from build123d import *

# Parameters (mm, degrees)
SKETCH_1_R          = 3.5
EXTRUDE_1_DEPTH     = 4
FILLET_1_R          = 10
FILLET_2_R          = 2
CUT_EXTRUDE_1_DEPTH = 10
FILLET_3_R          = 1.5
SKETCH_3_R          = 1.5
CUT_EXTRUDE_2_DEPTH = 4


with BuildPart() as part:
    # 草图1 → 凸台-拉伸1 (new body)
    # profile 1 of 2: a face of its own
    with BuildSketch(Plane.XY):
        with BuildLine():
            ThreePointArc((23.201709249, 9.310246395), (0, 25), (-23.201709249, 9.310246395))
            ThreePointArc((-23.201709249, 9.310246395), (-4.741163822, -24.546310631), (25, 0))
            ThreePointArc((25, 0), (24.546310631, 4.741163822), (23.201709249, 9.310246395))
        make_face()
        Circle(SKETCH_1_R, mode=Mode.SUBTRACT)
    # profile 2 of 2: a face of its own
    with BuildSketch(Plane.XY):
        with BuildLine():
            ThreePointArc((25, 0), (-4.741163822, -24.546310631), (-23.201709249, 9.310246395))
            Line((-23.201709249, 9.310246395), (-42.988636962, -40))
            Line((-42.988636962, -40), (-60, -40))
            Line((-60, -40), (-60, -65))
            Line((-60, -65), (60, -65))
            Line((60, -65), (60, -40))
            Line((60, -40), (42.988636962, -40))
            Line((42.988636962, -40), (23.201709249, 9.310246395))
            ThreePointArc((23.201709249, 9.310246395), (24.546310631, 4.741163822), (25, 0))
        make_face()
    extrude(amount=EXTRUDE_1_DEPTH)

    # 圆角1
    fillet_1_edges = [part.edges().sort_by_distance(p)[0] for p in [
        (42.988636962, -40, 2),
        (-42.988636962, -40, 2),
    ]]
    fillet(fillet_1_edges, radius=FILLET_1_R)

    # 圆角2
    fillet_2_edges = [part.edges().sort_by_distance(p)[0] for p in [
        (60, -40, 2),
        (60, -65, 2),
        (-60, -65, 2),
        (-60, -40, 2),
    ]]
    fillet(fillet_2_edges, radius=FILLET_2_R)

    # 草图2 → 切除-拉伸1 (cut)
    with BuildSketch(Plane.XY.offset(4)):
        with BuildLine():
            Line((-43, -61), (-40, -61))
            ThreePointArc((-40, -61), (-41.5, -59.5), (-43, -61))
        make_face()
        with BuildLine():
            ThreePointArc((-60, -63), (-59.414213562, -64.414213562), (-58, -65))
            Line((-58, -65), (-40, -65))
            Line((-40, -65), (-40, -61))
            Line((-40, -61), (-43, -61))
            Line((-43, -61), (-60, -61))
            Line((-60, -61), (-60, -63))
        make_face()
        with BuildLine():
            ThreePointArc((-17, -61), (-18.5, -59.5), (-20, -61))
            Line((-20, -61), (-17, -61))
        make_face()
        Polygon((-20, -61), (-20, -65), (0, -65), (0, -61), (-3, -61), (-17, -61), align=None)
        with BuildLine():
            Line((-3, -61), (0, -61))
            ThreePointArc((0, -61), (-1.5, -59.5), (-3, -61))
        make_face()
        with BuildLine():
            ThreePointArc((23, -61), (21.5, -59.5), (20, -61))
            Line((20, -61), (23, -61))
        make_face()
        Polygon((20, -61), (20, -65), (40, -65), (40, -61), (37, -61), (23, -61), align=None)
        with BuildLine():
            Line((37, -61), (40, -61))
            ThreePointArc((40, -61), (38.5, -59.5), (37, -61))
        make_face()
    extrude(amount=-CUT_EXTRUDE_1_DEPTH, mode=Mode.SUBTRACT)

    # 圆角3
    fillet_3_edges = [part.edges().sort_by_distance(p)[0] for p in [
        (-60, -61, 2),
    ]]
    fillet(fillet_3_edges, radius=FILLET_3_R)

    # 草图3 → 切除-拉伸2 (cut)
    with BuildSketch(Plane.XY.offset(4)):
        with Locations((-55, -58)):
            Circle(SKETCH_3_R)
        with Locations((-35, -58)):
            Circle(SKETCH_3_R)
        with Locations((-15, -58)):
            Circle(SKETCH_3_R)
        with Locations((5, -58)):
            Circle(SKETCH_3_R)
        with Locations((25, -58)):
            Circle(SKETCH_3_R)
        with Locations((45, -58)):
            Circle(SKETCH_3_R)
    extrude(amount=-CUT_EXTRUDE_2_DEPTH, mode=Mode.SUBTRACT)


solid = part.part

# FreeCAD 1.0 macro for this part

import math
import FreeCAD as App
import Part
import Sketcher

V = App.Vector
Q = App.Units.Quantity


def edges_at(feature, points):
    """Names of the edges that pass closest to the given points."""
    edges = feature.Shape.Edges
    near = lambda p: min(range(len(edges)), key=lambda i: edges[i].distToShape(Part.Vertex(*p))[0])
    return sorted({f"Edge{near(p) + 1}" for p in points})

doc = App.newDocument("Part")
body = doc.addObject("PartDesign::Body", "Body")

# Sketch on XY plane
sketch1 = body.newObject("Sketcher::SketchObject", "Sketch")
sketch1.AttachmentSupport = (doc.getObject("XY_Plane"), [""])
sketch1.MapMode = "FlatFace"
sketch1.addGeometry(Part.ArcOfCircle(Part.Circle(V(0, 0, 0), V(0, 0, 1), 25), math.radians(22), math.radians(158)), False)
sketch1.addGeometry(Part.LineSegment(V(-23.2, 9.3, 0), V(-43, -40, 0)), False)
sketch1.addGeometry(Part.LineSegment(V(-43, -40, 0), V(-60, -40, 0)), False)
sketch1.addGeometry(Part.LineSegment(V(-60, -40, 0), V(-60, -65, 0)), False)
sketch1.addGeometry(Part.LineSegment(V(-60, -65, 0), V(60, -65, 0)), False)
sketch1.addGeometry(Part.LineSegment(V(60, -65, 0), V(60, -40, 0)), False)
sketch1.addGeometry(Part.LineSegment(V(60, -40, 0), V(43, -40, 0)), False)
sketch1.addGeometry(Part.LineSegment(V(43, -40, 0), V(23.2, 9.3, 0)), False)
sketch1.addGeometry(Part.Circle(V(0, 0, 0), V(0, 0, 1), 3.5), False)
sketch1.addConstraint(Sketcher.Constraint("Tangent", 0, 2, 1, 1))
sketch1.addConstraint(Sketcher.Constraint("Coincident", 1, 2, 2, 1))
sketch1.addConstraint(Sketcher.Constraint("Coincident", 2, 2, 3, 1))
sketch1.addConstraint(Sketcher.Constraint("Coincident", 3, 2, 4, 1))
sketch1.addConstraint(Sketcher.Constraint("Coincident", 4, 2, 5, 1))
sketch1.addConstraint(Sketcher.Constraint("Coincident", 5, 2, 6, 1))
sketch1.addConstraint(Sketcher.Constraint("Coincident", 6, 2, 7, 1))
sketch1.addConstraint(Sketcher.Constraint("Tangent", 7, 2, 0, 1))
sketch1.addConstraint(Sketcher.Constraint("Horizontal", 2))
sketch1.addConstraint(Sketcher.Constraint("Vertical", 3))
sketch1.addConstraint(Sketcher.Constraint("Horizontal", 4))
sketch1.addConstraint(Sketcher.Constraint("Vertical", 5))
sketch1.addConstraint(Sketcher.Constraint("Horizontal", 6))
sketch1.addConstraint(Sketcher.Constraint("Coincident", 0, 3, -1, 1))
sketch1.addConstraint(Sketcher.Constraint("Coincident", 8, 3, -1, 1))
sketch1.addConstraint(Sketcher.Constraint("Symmetric", 2, 2, 5, 2, -2))
sketch1.addConstraint(Sketcher.Constraint("Horizontal", 0, 2, 7, 2))
sketch1.addConstraint(Sketcher.Constraint("Diameter", 8, Q("7 mm")))
sketch1.addConstraint(Sketcher.Constraint("Radius", 0, Q("25 mm")))
sketch1.addConstraint(Sketcher.Constraint("DistanceX", 4, 1, 4, 2, Q("120 mm")))
sketch1.addConstraint(Sketcher.Constraint("DistanceY", 3, 2, 3, 1, Q("25 mm")))
sketch1.addConstraint(Sketcher.Constraint("DistanceY", 1, 2, -1, 1, Q("40 mm")))
sketch1.addConstraint(Sketcher.Constraint("DistanceX", 2, 2, 2, 1, Q("17.011363 mm")))
pad1 = body.newObject("PartDesign::Pad", "Pad")
pad1.Profile = sketch1
pad1.Length = 4
doc.recompute()

fillet = body.newObject("PartDesign::Fillet", "Fillet")
fillet.Base = (pad1, edges_at(pad1, [(42.989, -40, 2), (-42.989, -40, 2)]))
fillet.Radius = 10
doc.recompute()

fillet2 = body.newObject("PartDesign::Fillet", "Fillet001")
fillet2.Base = (fillet, edges_at(fillet, [
    (60, -40, 2),
    (60, -65, 2),
    (-60, -65, 2),
    (-60, -40, 2),
]))
fillet2.Radius = 2

# Sketch on XY plane
sketch2 = body.newObject("Sketcher::SketchObject", "Sketch001")
sketch2.AttachmentSupport = (doc.getObject("XY_Plane"), [""])
sketch2.MapMode = "FlatFace"
sketch2.AttachmentOffset = App.Placement(V(0, 0, 4), App.Rotation())
sketch2.addGeometry(Part.ArcOfCircle(Part.Circle(V(-41.5, -61, 0), V(0, 0, 1), 1.5), math.radians(0), math.radians(180)), False)
sketch2.addGeometry(Part.LineSegment(V(-43, -61, 0), V(-60, -61, 0)), False)
sketch2.addGeometry(Part.LineSegment(V(-60, -61, 0), V(-60, -63, 0)), False)
sketch2.addGeometry(Part.ArcOfCircle(Part.Circle(V(-58, -63, 0), V(0, 0, 1), 2), math.radians(-180), math.radians(-90)), False)
sketch2.addGeometry(Part.LineSegment(V(-58, -65, 0), V(-40, -65, 0)), False)
sketch2.addGeometry(Part.LineSegment(V(-40, -65, 0), V(-40, -61, 0)), False)
sketch2.addGeometry(Part.ArcOfCircle(Part.Circle(V(-18.5, -61, 0), V(0, 0, 1), 1.5), math.radians(0), math.radians(180)), False)
sketch2.addGeometry(Part.LineSegment(V(-20, -61, 0), V(-20, -65, 0)), False)
sketch2.addGeometry(Part.LineSegment(V(-20, -65, 0), V(0, -65, 0)), False)
sketch2.addGeometry(Part.LineSegment(V(0, -65, 0), V(0, -61, 0)), False)
sketch2.addGeometry(Part.ArcOfCircle(Part.Circle(V(-1.5, -61, 0), V(0, 0, 1), 1.5), math.radians(0), math.radians(180)), False)
sketch2.addGeometry(Part.LineSegment(V(-3, -61, 0), V(-17, -61, 0)), False)
sketch2.addGeometry(Part.ArcOfCircle(Part.Circle(V(21.5, -61, 0), V(0, 0, 1), 1.5), math.radians(0), math.radians(180)), False)
sketch2.addGeometry(Part.LineSegment(V(20, -61, 0), V(20, -65, 0)), False)
sketch2.addGeometry(Part.LineSegment(V(20, -65, 0), V(40, -65, 0)), False)
sketch2.addGeometry(Part.LineSegment(V(40, -65, 0), V(40, -61, 0)), False)
sketch2.addGeometry(Part.ArcOfCircle(Part.Circle(V(38.5, -61, 0), V(0, 0, 1), 1.5), math.radians(0), math.radians(180)), False)
sketch2.addGeometry(Part.LineSegment(V(37, -61, 0), V(23, -61, 0)), False)
sketch2.addConstraint(Sketcher.Constraint("Coincident", 0, 2, 1, 1))
sketch2.addConstraint(Sketcher.Constraint("Coincident", 1, 2, 2, 1))
sketch2.addConstraint(Sketcher.Constraint("Tangent", 2, 2, 3, 1))
sketch2.addConstraint(Sketcher.Constraint("Tangent", 3, 2, 4, 1))
sketch2.addConstraint(Sketcher.Constraint("Coincident", 4, 2, 5, 1))
sketch2.addConstraint(Sketcher.Constraint("Tangent", 5, 2, 0, 1))
sketch2.addConstraint(Sketcher.Constraint("Tangent", 6, 2, 7, 1))
sketch2.addConstraint(Sketcher.Constraint("Coincident", 7, 2, 8, 1))
sketch2.addConstraint(Sketcher.Constraint("Coincident", 8, 2, 9, 1))
sketch2.addConstraint(Sketcher.Constraint("Tangent", 9, 2, 10, 1))
sketch2.addConstraint(Sketcher.Constraint("Coincident", 10, 2, 11, 1))
sketch2.addConstraint(Sketcher.Constraint("Coincident", 11, 2, 6, 1))
sketch2.addConstraint(Sketcher.Constraint("Tangent", 12, 2, 13, 1))
sketch2.addConstraint(Sketcher.Constraint("Coincident", 13, 2, 14, 1))
sketch2.addConstraint(Sketcher.Constraint("Coincident", 14, 2, 15, 1))
sketch2.addConstraint(Sketcher.Constraint("Tangent", 15, 2, 16, 1))
sketch2.addConstraint(Sketcher.Constraint("Coincident", 16, 2, 17, 1))
sketch2.addConstraint(Sketcher.Constraint("Coincident", 17, 2, 12, 1))
sketch2.addConstraint(Sketcher.Constraint("Horizontal", 1))
sketch2.addConstraint(Sketcher.Constraint("Vertical", 2))
sketch2.addConstraint(Sketcher.Constraint("Horizontal", 4))
sketch2.addConstraint(Sketcher.Constraint("Vertical", 5))
sketch2.addConstraint(Sketcher.Constraint("Vertical", 7))
sketch2.addConstraint(Sketcher.Constraint("Horizontal", 8))
sketch2.addConstraint(Sketcher.Constraint("Vertical", 9))
sketch2.addConstraint(Sketcher.Constraint("Horizontal", 11))
sketch2.addConstraint(Sketcher.Constraint("Vertical", 13))
sketch2.addConstraint(Sketcher.Constraint("Horizontal", 14))
sketch2.addConstraint(Sketcher.Constraint("Vertical", 15))
sketch2.addConstraint(Sketcher.Constraint("Horizontal", 17))
sketch2.addConstraint(Sketcher.Constraint("Equal", 0, 6))
sketch2.addConstraint(Sketcher.Constraint("Equal", 6, 10))
sketch2.addConstraint(Sketcher.Constraint("Equal", 10, 12))
sketch2.addConstraint(Sketcher.Constraint("Equal", 12, 16))
sketch2.addConstraint(Sketcher.Constraint("Symmetric", 6, 2, 12, 2, -2))
sketch2.addConstraint(Sketcher.Constraint("Symmetric", 4, 2, 14, 2, -2))
sketch2.addConstraint(Sketcher.Constraint("PointOnObject", 8, 2, -2))
sketch2.addConstraint(Sketcher.Constraint("Horizontal", 0, 3, 6, 3))
sketch2.addConstraint(Sketcher.Constraint("Horizontal", 6, 3, 10, 3))
sketch2.addConstraint(Sketcher.Constraint("Horizontal", 12, 3, 16, 3))
sketch2.addConstraint(Sketcher.Constraint("Horizontal", 16, 3, 0, 2))
sketch2.addConstraint(Sketcher.Constraint("Horizontal", 4, 2, 7, 2))
sketch2.addConstraint(Sketcher.Constraint("Horizontal", 9, 2, 10, 2))
sketch2.addConstraint(Sketcher.Constraint("Horizontal", 15, 2, 16, 2))
sketch2.addConstraint(Sketcher.Constraint("Equal", 8, 14))
sketch2.addConstraint(Sketcher.Constraint("Radius", 3, Q("2 mm")))
sketch2.addConstraint(Sketcher.Constraint("Radius", 0, Q("1.5 mm")))
sketch2.addConstraint(Sketcher.Constraint("DistanceX", 1, 2, 1, 1, Q("17 mm")))
sketch2.addConstraint(Sketcher.Constraint("DistanceX", 8, 1, 8, 2, Q("20 mm")))
sketch2.addConstraint(Sketcher.Constraint("DistanceY", 2, 2, 2, 1, Q("2 mm")))
sketch2.addConstraint(Sketcher.Constraint("DistanceY", 0, 3, -1, 1, Q("61 mm")))
pocket1 = body.newObject("PartDesign::Pocket", "Pocket")
pocket1.Profile = sketch2
pocket1.Length = 10
doc.recompute()

fillet3 = body.newObject("PartDesign::Fillet", "Fillet002")
fillet3.Base = (pocket1, edges_at(pocket1, [(-60, -61, 2)]))
fillet3.Radius = 1.5

# Sketch on XY plane
sketch3 = body.newObject("Sketcher::SketchObject", "Sketch002")
sketch3.AttachmentSupport = (doc.getObject("XY_Plane"), [""])
sketch3.MapMode = "FlatFace"
sketch3.AttachmentOffset = App.Placement(V(0, 0, 4), App.Rotation())
sketch3.addGeometry(Part.Circle(V(-55, -58, 0), V(0, 0, 1), 1.5), False)
sketch3.addGeometry(Part.Circle(V(-35, -58, 0), V(0, 0, 1), 1.5), False)
sketch3.addGeometry(Part.Circle(V(-15, -58, 0), V(0, 0, 1), 1.5), False)
sketch3.addGeometry(Part.Circle(V(5, -58, 0), V(0, 0, 1), 1.5), False)
sketch3.addGeometry(Part.Circle(V(25, -58, 0), V(0, 0, 1), 1.5), False)
sketch3.addGeometry(Part.Circle(V(45, -58, 0), V(0, 0, 1), 1.5), False)
sketch3.addConstraint(Sketcher.Constraint("Equal", 0, 1))
sketch3.addConstraint(Sketcher.Constraint("Equal", 1, 2))
sketch3.addConstraint(Sketcher.Constraint("Equal", 2, 3))
sketch3.addConstraint(Sketcher.Constraint("Equal", 3, 4))
sketch3.addConstraint(Sketcher.Constraint("Equal", 4, 5))
sketch3.addConstraint(Sketcher.Constraint("Horizontal", 0, 3, 1, 3))
sketch3.addConstraint(Sketcher.Constraint("Horizontal", 1, 3, 2, 3))
sketch3.addConstraint(Sketcher.Constraint("Horizontal", 2, 3, 3, 3))
sketch3.addConstraint(Sketcher.Constraint("Horizontal", 3, 3, 4, 3))
sketch3.addConstraint(Sketcher.Constraint("Horizontal", 4, 3, 5, 3))
sketch3.addConstraint(Sketcher.Constraint("Diameter", 0, Q("3 mm")))
sketch3.addConstraint(Sketcher.Constraint("DistanceX", 0, 3, -1, 1, Q("55 mm")))
sketch3.addConstraint(Sketcher.Constraint("DistanceY", 0, 3, -1, 1, Q("58 mm")))
sketch3.addConstraint(Sketcher.Constraint("DistanceX", 1, 3, -1, 1, Q("35 mm")))
sketch3.addConstraint(Sketcher.Constraint("DistanceX", 2, 3, -1, 1, Q("15 mm")))
sketch3.addConstraint(Sketcher.Constraint("DistanceX", -1, 1, 3, 3, Q("5 mm")))
sketch3.addConstraint(Sketcher.Constraint("DistanceX", -1, 1, 4, 3, Q("25 mm")))
sketch3.addConstraint(Sketcher.Constraint("DistanceX", -1, 1, 5, 3, Q("45 mm")))
pocket2 = body.newObject("PartDesign::Pocket", "Pocket001")
pocket2.Profile = sketch3
pocket2.Length = 4

doc.recompute()
